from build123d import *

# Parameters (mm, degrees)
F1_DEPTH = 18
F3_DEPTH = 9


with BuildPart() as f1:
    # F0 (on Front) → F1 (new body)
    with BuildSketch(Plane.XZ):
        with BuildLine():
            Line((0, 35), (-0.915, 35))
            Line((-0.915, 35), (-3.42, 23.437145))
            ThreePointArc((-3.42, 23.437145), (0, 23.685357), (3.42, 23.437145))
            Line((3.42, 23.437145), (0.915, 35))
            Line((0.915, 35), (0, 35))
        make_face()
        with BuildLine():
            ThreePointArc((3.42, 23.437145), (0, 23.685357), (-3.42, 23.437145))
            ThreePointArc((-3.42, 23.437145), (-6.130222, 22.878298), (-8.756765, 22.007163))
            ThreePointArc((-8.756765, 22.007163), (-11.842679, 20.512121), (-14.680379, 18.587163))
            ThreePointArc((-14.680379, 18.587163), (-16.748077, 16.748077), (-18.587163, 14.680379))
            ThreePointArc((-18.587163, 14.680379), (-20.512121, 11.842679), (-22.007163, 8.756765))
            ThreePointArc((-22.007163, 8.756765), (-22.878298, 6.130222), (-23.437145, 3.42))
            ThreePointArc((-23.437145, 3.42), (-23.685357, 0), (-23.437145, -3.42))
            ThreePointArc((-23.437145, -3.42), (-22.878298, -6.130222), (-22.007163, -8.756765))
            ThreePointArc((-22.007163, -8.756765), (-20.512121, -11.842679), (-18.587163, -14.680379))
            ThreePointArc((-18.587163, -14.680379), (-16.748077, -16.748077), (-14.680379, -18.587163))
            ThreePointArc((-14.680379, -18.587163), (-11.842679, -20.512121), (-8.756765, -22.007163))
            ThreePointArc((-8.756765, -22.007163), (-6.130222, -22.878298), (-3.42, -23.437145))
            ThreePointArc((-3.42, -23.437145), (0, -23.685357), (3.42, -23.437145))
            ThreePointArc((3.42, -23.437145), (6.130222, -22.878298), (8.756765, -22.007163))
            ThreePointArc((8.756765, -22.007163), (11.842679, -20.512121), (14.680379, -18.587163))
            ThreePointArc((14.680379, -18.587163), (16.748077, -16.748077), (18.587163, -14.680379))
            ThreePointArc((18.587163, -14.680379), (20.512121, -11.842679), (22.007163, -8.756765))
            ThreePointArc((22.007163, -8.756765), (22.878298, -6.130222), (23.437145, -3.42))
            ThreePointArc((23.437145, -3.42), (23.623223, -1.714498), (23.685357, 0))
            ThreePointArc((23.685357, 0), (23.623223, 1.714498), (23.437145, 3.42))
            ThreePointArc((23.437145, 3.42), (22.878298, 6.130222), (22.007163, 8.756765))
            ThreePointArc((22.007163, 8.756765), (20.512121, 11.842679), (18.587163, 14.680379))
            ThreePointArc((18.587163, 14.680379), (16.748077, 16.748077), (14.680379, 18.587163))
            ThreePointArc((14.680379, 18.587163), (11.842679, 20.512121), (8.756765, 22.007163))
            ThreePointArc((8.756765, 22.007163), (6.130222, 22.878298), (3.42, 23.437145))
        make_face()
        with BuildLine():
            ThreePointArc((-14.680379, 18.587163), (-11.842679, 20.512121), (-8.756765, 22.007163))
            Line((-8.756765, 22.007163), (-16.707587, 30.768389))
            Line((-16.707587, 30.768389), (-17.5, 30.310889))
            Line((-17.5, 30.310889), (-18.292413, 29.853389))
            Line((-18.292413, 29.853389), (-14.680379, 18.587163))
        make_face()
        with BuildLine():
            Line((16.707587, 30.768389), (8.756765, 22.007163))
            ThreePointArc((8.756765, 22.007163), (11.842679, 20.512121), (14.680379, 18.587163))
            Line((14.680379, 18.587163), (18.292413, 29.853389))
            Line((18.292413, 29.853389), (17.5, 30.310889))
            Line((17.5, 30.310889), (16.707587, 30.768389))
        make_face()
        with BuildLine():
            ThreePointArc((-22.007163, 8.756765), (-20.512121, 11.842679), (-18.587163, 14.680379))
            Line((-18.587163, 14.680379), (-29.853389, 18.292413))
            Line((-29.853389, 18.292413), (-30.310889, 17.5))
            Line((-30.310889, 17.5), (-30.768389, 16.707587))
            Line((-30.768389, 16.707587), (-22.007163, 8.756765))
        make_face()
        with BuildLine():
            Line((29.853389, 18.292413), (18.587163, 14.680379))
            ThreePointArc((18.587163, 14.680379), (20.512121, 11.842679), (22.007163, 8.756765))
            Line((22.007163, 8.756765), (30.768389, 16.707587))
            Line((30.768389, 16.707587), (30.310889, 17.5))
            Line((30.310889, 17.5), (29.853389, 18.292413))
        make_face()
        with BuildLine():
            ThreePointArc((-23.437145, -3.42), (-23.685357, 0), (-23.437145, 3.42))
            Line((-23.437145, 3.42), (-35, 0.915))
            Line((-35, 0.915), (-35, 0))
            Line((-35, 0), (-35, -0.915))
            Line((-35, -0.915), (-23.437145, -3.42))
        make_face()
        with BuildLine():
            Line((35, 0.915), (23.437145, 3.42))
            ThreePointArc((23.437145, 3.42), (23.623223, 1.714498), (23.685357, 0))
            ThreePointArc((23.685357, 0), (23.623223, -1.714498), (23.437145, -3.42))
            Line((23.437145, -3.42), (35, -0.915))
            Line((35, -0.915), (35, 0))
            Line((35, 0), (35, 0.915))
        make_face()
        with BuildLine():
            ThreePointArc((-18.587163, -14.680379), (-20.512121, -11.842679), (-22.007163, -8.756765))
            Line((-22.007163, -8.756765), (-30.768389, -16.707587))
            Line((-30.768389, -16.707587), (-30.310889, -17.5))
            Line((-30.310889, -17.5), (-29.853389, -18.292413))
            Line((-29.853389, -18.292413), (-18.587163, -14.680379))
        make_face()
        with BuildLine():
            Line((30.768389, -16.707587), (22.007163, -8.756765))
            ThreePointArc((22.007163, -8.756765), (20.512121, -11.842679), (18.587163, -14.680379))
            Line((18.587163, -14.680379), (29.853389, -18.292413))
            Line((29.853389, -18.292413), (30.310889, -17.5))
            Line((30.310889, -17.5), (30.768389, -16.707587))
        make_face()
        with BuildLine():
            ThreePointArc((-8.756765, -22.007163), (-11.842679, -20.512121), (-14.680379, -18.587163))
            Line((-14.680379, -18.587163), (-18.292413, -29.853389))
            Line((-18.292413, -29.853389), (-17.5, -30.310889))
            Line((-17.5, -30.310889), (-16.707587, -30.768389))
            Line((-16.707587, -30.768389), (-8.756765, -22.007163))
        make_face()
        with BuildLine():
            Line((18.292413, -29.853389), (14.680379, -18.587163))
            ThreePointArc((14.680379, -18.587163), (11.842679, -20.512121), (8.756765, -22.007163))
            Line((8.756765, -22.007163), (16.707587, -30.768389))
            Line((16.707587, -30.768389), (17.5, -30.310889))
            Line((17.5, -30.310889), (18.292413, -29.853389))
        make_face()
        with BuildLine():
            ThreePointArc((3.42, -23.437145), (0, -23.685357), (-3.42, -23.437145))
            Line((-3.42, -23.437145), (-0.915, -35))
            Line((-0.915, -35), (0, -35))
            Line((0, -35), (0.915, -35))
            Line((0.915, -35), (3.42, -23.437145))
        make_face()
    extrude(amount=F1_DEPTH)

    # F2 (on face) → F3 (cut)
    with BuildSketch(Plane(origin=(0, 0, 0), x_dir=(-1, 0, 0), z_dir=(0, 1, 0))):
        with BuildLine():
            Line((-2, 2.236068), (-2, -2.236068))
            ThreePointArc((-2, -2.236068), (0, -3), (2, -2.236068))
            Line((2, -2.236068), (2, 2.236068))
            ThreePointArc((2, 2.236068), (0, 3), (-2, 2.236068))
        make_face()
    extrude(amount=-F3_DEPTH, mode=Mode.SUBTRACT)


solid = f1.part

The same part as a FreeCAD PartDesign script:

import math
import FreeCAD as App
import Part
import Sketcher
Q = App.Units.Quantity

doc = App.newDocument("Part")
body = doc.addObject("PartDesign::Body", "Body")

# Sketch on XZ plane
sketch1 = doc.addObject("Sketcher::SketchObject", "Sketch")
body.addObject(sketch1)
sketch1.AttachmentSupport = (doc.XZ_Plane, [""])
sketch1.MapMode = "FlatFace"
sketch1.addGeometry(Part.LineSegment(App.Vector(-0.915, 35, 0), App.Vector(-3.42, 23.437145, 0)), False)
sketch1.addGeometry(Part.ArcOfCircle(Part.Circle(App.Vector(0.000017, -0.00006, 0), App.Vector(0, 0, 1), 23.685419), math.radians(98.302151), math.radians(111.697852)), False)
sketch1.addGeometry(Part.LineSegment(App.Vector(-8.756765, 22.007163, 0), App.Vector(-16.707587, 30.768389, 0)), False)
sketch1.addGeometry(Part.LineSegment(App.Vector(-16.707587, 30.768389, 0), App.Vector(-18.292413, 29.853389, 0)), False)
sketch1.addGeometry(Part.LineSegment(App.Vector(-18.292413, 29.853389, 0), App.Vector(-14.680379, 18.587163, 0)), False)
sketch1.addGeometry(Part.ArcOfCircle(Part.Circle(App.Vector(-0.000023, 0.000023, 0), App.Vector(0, 0, 1), 23.685325), math.radians(128.302121), math.radians(141.697879)), False)
sketch1.addGeometry(Part.LineSegment(App.Vector(-18.587163, 14.680379, 0), App.Vector(-29.853389, 18.292413, 0)), False)
sketch1.addGeometry(Part.LineSegment(App.Vector(-29.853389, 18.292413, 0), App.Vector(-30.768389, 16.707587, 0)), False)
sketch1.addGeometry(Part.LineSegment(App.Vector(-30.768389, 16.707587, 0), App.Vector(-22.007163, 8.756765, 0)), False)
sketch1.addGeometry(Part.ArcOfCircle(Part.Circle(App.Vector(0.00006, -0.000017, 0), App.Vector(0, 0, 1), 23.685419), math.radians(158.302148), math.radians(171.697849)), False)
sketch1.addGeometry(Part.LineSegment(App.Vector(-23.437145, 3.42, 0), App.Vector(-35, 0.915, 0)), False)
sketch1.addGeometry(Part.LineSegment(App.Vector(-35, 0.915, 0), App.Vector(-35, -0.915, 0)), False)
sketch1.addGeometry(Part.LineSegment(App.Vector(-35, -0.915, 0), App.Vector(-23.437145, -3.42, 0)), False)
sketch1.addGeometry(Part.ArcOfCircle(Part.Circle(App.Vector(0.00006, 0.000017, 0), App.Vector(0, 0, 1), 23.685419), math.radians(-171.697849), math.radians(-158.302148)), False)
sketch1.addGeometry(Part.LineSegment(App.Vector(-22.007163, -8.756765, 0), App.Vector(-30.768389, -16.707587, 0)), False)
sketch1.addGeometry(Part.LineSegment(App.Vector(-30.768389, -16.707587, 0), App.Vector(-29.853389, -18.292413, 0)), False)
sketch1.addGeometry(Part.LineSegment(App.Vector(-29.853389, -18.292413, 0), App.Vector(-18.587163, -14.680379, 0)), False)
sketch1.addGeometry(Part.ArcOfCircle(Part.Circle(App.Vector(-0.000023, -0.000023, 0), App.Vector(0, 0, 1), 23.685325), math.radians(-141.697879), math.radians(-128.302121)), False)
sketch1.addGeometry(Part.LineSegment(App.Vector(-14.680379, -18.587163, 0), App.Vector(-18.292413, -29.853389, 0)), False)
sketch1.addGeometry(Part.LineSegment(App.Vector(-18.292413, -29.853389, 0), App.Vector(-16.707587, -30.768389, 0)), False)
sketch1.addGeometry(Part.LineSegment(App.Vector(-16.707587, -30.768389, 0), App.Vector(-8.756765, -22.007163, 0)), False)
sketch1.addGeometry(Part.ArcOfCircle(Part.Circle(App.Vector(0.000017, 0.00006, 0), App.Vector(0, 0, 1), 23.685419), math.radians(-111.697852), math.radians(-98.302151)), False)
sketch1.addGeometry(Part.LineSegment(App.Vector(-3.42, -23.437145, 0), App.Vector(-0.915, -35, 0)), False)
sketch1.addGeometry(Part.LineSegment(App.Vector(-0.915, -35, 0), App.Vector(0.915, -35, 0)), False)
sketch1.addGeometry(Part.LineSegment(App.Vector(0.915, -35, 0), App.Vector(3.42, -23.437145, 0)), False)
sketch1.addGeometry(Part.ArcOfCircle(Part.Circle(App.Vector(-0.000017, 0.00006, 0), App.Vector(0, 0, 1), 23.685419), math.radians(-81.697849), math.radians(-68.302148)), False)
sketch1.addGeometry(Part.LineSegment(App.Vector(8.756765, -22.007163, 0), App.Vector(16.707587, -30.768389, 0)), False)
sketch1.addGeometry(Part.LineSegment(App.Vector(16.707587, -30.768389, 0), App.Vector(18.292413, -29.853389, 0)), False)
sketch1.addGeometry(Part.LineSegment(App.Vector(18.292413, -29.853389, 0), App.Vector(14.680379, -18.587163, 0)), False)
sketch1.addGeometry(Part.ArcOfCircle(Part.Circle(App.Vector(0.000023, -0.000023, 0), App.Vector(0, 0, 1), 23.685325), math.radians(-51.697879), math.radians(-38.302121)), False)
sketch1.addGeometry(Part.LineSegment(App.Vector(18.587163, -14.680379, 0), App.Vector(29.853389, -18.292413, 0)), False)
sketch1.addGeometry(Part.LineSegment(App.Vector(29.853389, -18.292413, 0), App.Vector(30.768389, -16.707587, 0)), False)
sketch1.addGeometry(Part.LineSegment(App.Vector(30.768389, -16.707587, 0), App.Vector(22.007163, -8.756765, 0)), False)
sketch1.addGeometry(Part.ArcOfCircle(Part.Circle(App.Vector(-0.00006, 0.000017, 0), App.Vector(0, 0, 1), 23.685419), math.radians(-21.697852), math.radians(-8.302151)), False)
sketch1.addGeometry(Part.LineSegment(App.Vector(23.437145, -3.42, 0), App.Vector(35, -0.915, 0)), False)
sketch1.addGeometry(Part.LineSegment(App.Vector(35, -0.915, 0), App.Vector(35, 0.915, 0)), False)
sketch1.addGeometry(Part.LineSegment(App.Vector(35, 0.915, 0), App.Vector(23.437145, 3.42, 0)), False)
sketch1.addGeometry(Part.ArcOfCircle(Part.Circle(App.Vector(-0.00006, -0.000017, 0), App.Vector(0, 0, 1), 23.685419), math.radians(8.302151), math.radians(21.697852)), False)
sketch1.addGeometry(Part.LineSegment(App.Vector(22.007163, 8.756765, 0), App.Vector(30.768389, 16.707587, 0)), False)
sketch1.addGeometry(Part.LineSegment(App.Vector(30.768389, 16.707587, 0), App.Vector(29.853389, 18.292413, 0)), False)
sketch1.addGeometry(Part.LineSegment(App.Vector(29.853389, 18.292413, 0), App.Vector(18.587163, 14.680379, 0)), False)
sketch1.addGeometry(Part.ArcOfCircle(Part.Circle(App.Vector(0.000023, 0.000023, 0), App.Vector(0, 0, 1), 23.685325), math.radians(38.302121), math.radians(51.697879)), False)
sketch1.addGeometry(Part.LineSegment(App.Vector(14.680379, 18.587163, 0), App.Vector(18.292413, 29.853389, 0)), False)
sketch1.addGeometry(Part.LineSegment(App.Vector(18.292413, 29.853389, 0), App.Vector(16.707587, 30.768389, 0)), False)
sketch1.addGeometry(Part.LineSegment(App.Vector(16.707587, 30.768389, 0), App.Vector(8.756765, 22.007163, 0)), False)
sketch1.addGeometry(Part.ArcOfCircle(Part.Circle(App.Vector(-0.000017, -0.00006, 0), App.Vector(0, 0, 1), 23.685419), math.radians(68.302148), math.radians(81.697849)), False)
sketch1.addGeometry(Part.LineSegment(App.Vector(3.42, 23.437145, 0), App.Vector(0.915, 35, 0)), False)
sketch1.addGeometry(Part.LineSegment(App.Vector(0.915, 35, 0), App.Vector(-0.915, 35, 0)), False)
sketch1.addConstraint(Sketcher.Constraint("Coincident", 0, 2, 1, 1))
sketch1.addConstraint(Sketcher.Constraint("Coincident", 1, 2, 2, 1))
sketch1.addConstraint(Sketcher.Constraint("Coincident", 2, 2, 3, 1))
sketch1.addConstraint(Sketcher.Constraint("Coincident", 3, 2, 4, 1))
sketch1.addConstraint(Sketcher.Constraint("Coincident", 4, 2, 5, 1))
sketch1.addConstraint(Sketcher.Constraint("Coincident", 5, 2, 6, 1))
sketch1.addConstraint(Sketcher.Constraint("Coincident", 6, 2, 7, 1))
sketch1.addConstraint(Sketcher.Constraint("Coincident", 7, 2, 8, 1))
sketch1.addConstraint(Sketcher.Constraint("Coincident", 8, 2, 9, 1))
sketch1.addConstraint(Sketcher.Constraint("Coincident", 9, 2, 10, 1))
sketch1.addConstraint(Sketcher.Constraint("Coincident", 10, 2, 11, 1))
sketch1.addConstraint(Sketcher.Constraint("Coincident", 11, 2, 12, 1))
sketch1.addConstraint(Sketcher.Constraint("Coincident", 12, 2, 13, 1))
sketch1.addConstraint(Sketcher.Constraint("Coincident", 13, 2, 14, 1))
sketch1.addConstraint(Sketcher.Constraint("Coincident", 14, 2, 15, 1))
sketch1.addConstraint(Sketcher.Constraint("Coincident", 15, 2, 16, 1))
sketch1.addConstraint(Sketcher.Constraint("Coincident", 16, 2, 17, 1))
sketch1.addConstraint(Sketcher.Constraint("Coincident", 17, 2, 18, 1))
sketch1.addConstraint(Sketcher.Constraint("Coincident", 18, 2, 19, 1))
sketch1.addConstraint(Sketcher.Constraint("Coincident", 19, 2, 20, 1))
sketch1.addConstraint(Sketcher.Constraint("Coincident", 20, 2, 21, 1))
sketch1.addConstraint(Sketcher.Constraint("Coincident", 21, 2, 22, 1))
sketch1.addConstraint(Sketcher.Constraint("Coincident", 22, 2, 23, 1))
sketch1.addConstraint(Sketcher.Constraint("Coincident", 23, 2, 24, 1))
sketch1.addConstraint(Sketcher.Constraint("Coincident", 24, 2, 25, 1))
sketch1.addConstraint(Sketcher.Constraint("Coincident", 25, 2, 26, 1))
sketch1.addConstraint(Sketcher.Constraint("Coincident", 26, 2, 27, 1))
sketch1.addConstraint(Sketcher.Constraint("Coincident", 27, 2, 28, 1))
sketch1.addConstraint(Sketcher.Constraint("Coincident", 28, 2, 29, 1))
sketch1.addConstraint(Sketcher.Constraint("Coincident", 29, 2, 30, 1))
sketch1.addConstraint(Sketcher.Constraint("Coincident", 30, 2, 31, 1))
sketch1.addConstraint(Sketcher.Constraint("Coincident", 31, 2, 32, 1))
sketch1.addConstraint(Sketcher.Constraint("Coincident", 32, 2, 33, 1))
sketch1.addConstraint(Sketcher.Constraint("Coincident", 33, 2, 34, 1))
sketch1.addConstraint(Sketcher.Constraint("Coincident", 34, 2, 35, 1))
sketch1.addConstraint(Sketcher.Constraint("Coincident", 35, 2, 36, 1))
sketch1.addConstraint(Sketcher.Constraint("Coincident", 36, 2, 37, 1))
sketch1.addConstraint(Sketcher.Constraint("Coincident", 37, 2, 38, 1))
sketch1.addConstraint(Sketcher.Constraint("Coincident", 38, 2, 39, 1))
sketch1.addConstraint(Sketcher.Constraint("Coincident", 39, 2, 40, 1))
sketch1.addConstraint(Sketcher.Constraint("Coincident", 40, 2, 41, 1))
sketch1.addConstraint(Sketcher.Constraint("Coincident", 41, 2, 42, 1))
sketch1.addConstraint(Sketcher.Constraint("Coincident", 42, 2, 43, 1))
sketch1.addConstraint(Sketcher.Constraint("Coincident", 43, 2, 44, 1))
sketch1.addConstraint(Sketcher.Constraint("Coincident", 44, 2, 45, 1))
sketch1.addConstraint(Sketcher.Constraint("Coincident", 45, 2, 46, 1))
sketch1.addConstraint(Sketcher.Constraint("Coincident", 46, 2, 47, 1))
sketch1.addConstraint(Sketcher.Constraint("Coincident", 47, 2, 0, 1))
sketch1.addConstraint(Sketcher.Constraint("Vertical", 11))
sketch1.addConstraint(Sketcher.Constraint("Horizontal", 23))
sketch1.addConstraint(Sketcher.Constraint("Vertical", 35))
sketch1.addConstraint(Sketcher.Constraint("Horizontal", 47))
sketch1.addConstraint(Sketcher.Constraint("Equal", 1, 9))
sketch1.addConstraint(Sketcher.Constraint("Equal", 9, 13))
sketch1.addConstraint(Sketcher.Constraint("Equal", 5, 17))
sketch1.addConstraint(Sketcher.Constraint("Equal", 13, 21))
sketch1.addConstraint(Sketcher.Constraint("Equal", 21, 25))
sketch1.addConstraint(Sketcher.Constraint("Equal", 17, 29))
sketch1.addConstraint(Sketcher.Constraint("Equal", 25, 33))
sketch1.addConstraint(Sketcher.Constraint("Equal", 33, 37))
sketch1.addConstraint(Sketcher.Constraint("Equal", 29, 41))
sketch1.addConstraint(Sketcher.Constraint("Equal", 37, 45))
sketch1.addConstraint(Sketcher.Constraint("Symmetric", 1, 3, 25, 3, -1, 1))
sketch1.addConstraint(Sketcher.Constraint("Symmetric", 5, 3, 29, 3, -1, 1))
sketch1.addConstraint(Sketcher.Constraint("Symmetric", 9, 3, 33, 3, -1, 1))
sketch1.addConstraint(Sketcher.Constraint("Symmetric", 13, 3, 37, 3, -1, 1))
sketch1.addConstraint(Sketcher.Constraint("Symmetric", 17, 3, 41, 3, -1, 1))
sketch1.addConstraint(Sketcher.Constraint("Symmetric", 21, 3, 45, 3, -1, 1))
sketch1.addConstraint(Sketcher.Constraint("Symmetric", 2, 2, 26, 2, -1, 1))
sketch1.addConstraint(Sketcher.Constraint("Symmetric", 3, 2, 27, 2, -1, 1))
sketch1.addConstraint(Sketcher.Constraint("Symmetric", 6, 2, 30, 2, -1, 1))
sketch1.addConstraint(Sketcher.Constraint("Symmetric", 7, 2, 31, 2, -1, 1))
sketch1.addConstraint(Sketcher.Constraint("Symmetric", 10, 2, 34, 2, -1, 1))
sketch1.addConstraint(Sketcher.Constraint("Symmetric", 14, 2, 38, 2, -1, 1))
sketch1.addConstraint(Sketcher.Constraint("Symmetric", 15, 2, 39, 2, -1, 1))
sketch1.addConstraint(Sketcher.Constraint("Symmetric", 18, 2, 42, 2, -1, 1))
sketch1.addConstraint(Sketcher.Constraint("Symmetric", 19, 2, 43, 2, -1, 1))
sketch1.addConstraint(Sketcher.Constraint("Symmetric", 22, 2, 46, 2, -1, 1))
sketch1.addConstraint(Sketcher.Constraint("Symmetric", 21, 3, 25, 3, -2))
sketch1.addConstraint(Sketcher.Constraint("Symmetric", 17, 3, 29, 3, -2))
sketch1.addConstraint(Sketcher.Constraint("Symmetric", 13, 3, 33, 3, -2))
sketch1.addConstraint(Sketcher.Constraint("Symmetric", 19, 2, 26, 2, -2))
sketch1.addConstraint(Sketcher.Constraint("Symmetric", 18, 2, 27, 2, -2))
sketch1.addConstraint(Sketcher.Constraint("Symmetric", 15, 2, 30, 2, -2))
sketch1.addConstraint(Sketcher.Constraint("Symmetric", 14, 2, 31, 2, -2))
sketch1.addConstraint(Sketcher.Constraint("Perpendicular", 0, 12))
sketch1.addConstraint(Sketcher.Constraint("Perpendicular", 2, 14))
sketch1.addConstraint(Sketcher.Constraint("Perpendicular", 3, 15))
sketch1.addConstraint(Sketcher.Constraint("Perpendicular", 4, 16))
sketch1.addConstraint(Sketcher.Constraint("Perpendicular", 6, 18))
sketch1.addConstraint(Sketcher.Constraint("Perpendicular", 8, 20))
sketch1.addConstraint(Sketcher.Constraint("Perpendicular", 10, 22))
sketch1.addConstraint(Sketcher.Constraint("Perpendicular", 12, 24))
sketch1.addConstraint(Sketcher.Constraint("Perpendicular", 14, 26))
sketch1.addConstraint(Sketcher.Constraint("Perpendicular", 16, 28))
sketch1.addConstraint(Sketcher.Constraint("Perpendicular", 18, 30))
sketch1.addConstraint(Sketcher.Constraint("Perpendicular", 20, 32))
sketch1.addConstraint(Sketcher.Constraint("Perpendicular", 22, 34))
sketch1.addConstraint(Sketcher.Constraint("Perpendicular", 24, 36))
sketch1.addConstraint(Sketcher.Constraint("Perpendicular", 26, 38))
sketch1.addConstraint(Sketcher.Constraint("Perpendicular", 28, 40))
sketch1.addConstraint(Sketcher.Constraint("Perpendicular", 30, 42))
sketch1.addConstraint(Sketcher.Constraint("Perpendicular", 32, 44))
sketch1.addConstraint(Sketcher.Constraint("Perpendicular", 34, 46))
sketch1.addConstraint(Sketcher.Constraint("Horizontal", 21, 2, 24, 2))
sketch1.addConstraint(Sketcher.Constraint("Horizontal", 20, 2, 25, 2))
sketch1.addConstraint(Sketcher.Constraint("Horizontal", 17, 2, 28, 2))
sketch1.addConstraint(Sketcher.Constraint("Horizontal", 12, 2, 33, 2))
sketch1.addConstraint(Sketcher.Constraint("Horizontal", 11, 2, 34, 2))
sketch1.addConstraint(Sketcher.Constraint("Horizontal", 10, 2, 35, 2))
sketch1.addConstraint(Sketcher.Constraint("Horizontal", 0, 2, 45, 2))
sketch1.addConstraint(Sketcher.Constraint("Equal", 47, 11))
sketch1.addConstraint(Sketcher.Constraint("Equal", 0, 2))
sketch1.addConstraint(Sketcher.Constraint("Equal", 2, 4))
sketch1.addConstraint(Sketcher.Constraint("Equal", 4, 6))
sketch1.addConstraint(Sketcher.Constraint("Equal", 3, 7))
sketch1.addConstraint(Sketcher.Constraint("Equal", 6, 8))
sketch1.addConstraint(Sketcher.Constraint("Equal", 8, 10))
sketch1.addConstraint(Sketcher.Constraint("Angle", 3, Q("-149.999992 deg")))
sketch1.addConstraint(Sketcher.Constraint("DistanceX", 10, 2, -1, 1, 35.0))
sketch1.addConstraint(Sketcher.Constraint("DistanceY", 22, 2, -1, 1, 35.0))
sketch1.addConstraint(Sketcher.Constraint("DistanceX", 23, 1, 23, 2, 1.83))
sketch1.addConstraint(Sketcher.Constraint("Distance", 3, 1.83))
sketch1.addConstraint(Sketcher.Constraint("DistanceX", 0, 2, -1, 1, 3.42))
sketch1.addConstraint(Sketcher.Constraint("Radius", 1, 23.685419))
sketch1.addConstraint(Sketcher.Constraint("DistanceY", 4, 2, 1, 2, 3.42))
sketch1.addConstraint(Sketcher.Constraint("Radius", 5, 23.685325))
sketch1.addConstraint(Sketcher.Constraint("DistanceX", 7, 2, 2, 2, 14.060802))
sketch1.addConstraint(Sketcher.Constraint("DistanceY", 7, 2, 2, 2, 14.060802))
sketch1.addConstraint(Sketcher.Constraint("DistanceY", 8, 2, 4, 2, 9.830398))
sketch1.addConstraint(Sketcher.Constraint("Distance", 2, 11.831088))
sketch1.addConstraint(Sketcher.Constraint("DistanceY", -1, 1, 2, 2, 30.768389))
sketch1.addConstraint(Sketcher.Constraint("DistanceX", 4, 2, -1, 1, 14.680379))
pad1 = doc.addObject("PartDesign::Pad", "Pad")
body.addObject(pad1)
pad1.Profile = sketch1
pad1.Length = 18

# Sketch on XZ plane
sketch2 = doc.addObject("Sketcher::SketchObject", "Sketch001")
body.addObject(sketch2)
sketch2.AttachmentSupport = (doc.XZ_Plane, [""])
sketch2.MapMode = "FlatFace"
sketch2.addGeometry(Part.LineSegment(App.Vector(2, 2.2, 0), App.Vector(2, -2.2, 0)), False)
sketch2.addGeometry(Part.ArcOfCircle(Part.Circle(App.Vector(0, 0, 0), App.Vector(0, 0, 1), 3), math.radians(-132), math.radians(-48)), False)
sketch2.addGeometry(Part.LineSegment(App.Vector(-2, -2.2, 0), App.Vector(-2, 2.2, 0)), False)
sketch2.addGeometry(Part.ArcOfCircle(Part.Circle(App.Vector(0, 0, 0), App.Vector(0, 0, 1), 3), math.radians(48), math.radians(132)), False)
sketch2.addConstraint(Sketcher.Constraint("Coincident", 0, 2, 1, 2))
sketch2.addConstraint(Sketcher.Constraint("Coincident", 1, 1, 2, 1))
sketch2.addConstraint(Sketcher.Constraint("Coincident", 2, 2, 3, 2))
sketch2.addConstraint(Sketcher.Constraint("Coincident", 3, 1, 0, 1))
sketch2.addConstraint(Sketcher.Constraint("Vertical", 0))
sketch2.addConstraint(Sketcher.Constraint("Vertical", 2))
sketch2.addConstraint(Sketcher.Constraint("Coincident", 1, 3, -1, 1))
sketch2.addConstraint(Sketcher.Constraint("Coincident", 3, 3, -1, 1))
sketch2.addConstraint(Sketcher.Constraint("Equal", 1, 3))
sketch2.addConstraint(Sketcher.Constraint("Horizontal", 0, 2, 1, 1))
sketch2.addConstraint(Sketcher.Constraint("Radius", 1, 3.0))
sketch2.addConstraint(Sketcher.Constraint("DistanceX", -1, 1, 0, 2, 2.0))
pocket1 = doc.addObject("PartDesign::Pocket", "Pocket")
body.addObject(pocket1)
pocket1.Profile = sketch2
pocket1.Length = 9
pocket1.Reversed = True

doc.recompute()
